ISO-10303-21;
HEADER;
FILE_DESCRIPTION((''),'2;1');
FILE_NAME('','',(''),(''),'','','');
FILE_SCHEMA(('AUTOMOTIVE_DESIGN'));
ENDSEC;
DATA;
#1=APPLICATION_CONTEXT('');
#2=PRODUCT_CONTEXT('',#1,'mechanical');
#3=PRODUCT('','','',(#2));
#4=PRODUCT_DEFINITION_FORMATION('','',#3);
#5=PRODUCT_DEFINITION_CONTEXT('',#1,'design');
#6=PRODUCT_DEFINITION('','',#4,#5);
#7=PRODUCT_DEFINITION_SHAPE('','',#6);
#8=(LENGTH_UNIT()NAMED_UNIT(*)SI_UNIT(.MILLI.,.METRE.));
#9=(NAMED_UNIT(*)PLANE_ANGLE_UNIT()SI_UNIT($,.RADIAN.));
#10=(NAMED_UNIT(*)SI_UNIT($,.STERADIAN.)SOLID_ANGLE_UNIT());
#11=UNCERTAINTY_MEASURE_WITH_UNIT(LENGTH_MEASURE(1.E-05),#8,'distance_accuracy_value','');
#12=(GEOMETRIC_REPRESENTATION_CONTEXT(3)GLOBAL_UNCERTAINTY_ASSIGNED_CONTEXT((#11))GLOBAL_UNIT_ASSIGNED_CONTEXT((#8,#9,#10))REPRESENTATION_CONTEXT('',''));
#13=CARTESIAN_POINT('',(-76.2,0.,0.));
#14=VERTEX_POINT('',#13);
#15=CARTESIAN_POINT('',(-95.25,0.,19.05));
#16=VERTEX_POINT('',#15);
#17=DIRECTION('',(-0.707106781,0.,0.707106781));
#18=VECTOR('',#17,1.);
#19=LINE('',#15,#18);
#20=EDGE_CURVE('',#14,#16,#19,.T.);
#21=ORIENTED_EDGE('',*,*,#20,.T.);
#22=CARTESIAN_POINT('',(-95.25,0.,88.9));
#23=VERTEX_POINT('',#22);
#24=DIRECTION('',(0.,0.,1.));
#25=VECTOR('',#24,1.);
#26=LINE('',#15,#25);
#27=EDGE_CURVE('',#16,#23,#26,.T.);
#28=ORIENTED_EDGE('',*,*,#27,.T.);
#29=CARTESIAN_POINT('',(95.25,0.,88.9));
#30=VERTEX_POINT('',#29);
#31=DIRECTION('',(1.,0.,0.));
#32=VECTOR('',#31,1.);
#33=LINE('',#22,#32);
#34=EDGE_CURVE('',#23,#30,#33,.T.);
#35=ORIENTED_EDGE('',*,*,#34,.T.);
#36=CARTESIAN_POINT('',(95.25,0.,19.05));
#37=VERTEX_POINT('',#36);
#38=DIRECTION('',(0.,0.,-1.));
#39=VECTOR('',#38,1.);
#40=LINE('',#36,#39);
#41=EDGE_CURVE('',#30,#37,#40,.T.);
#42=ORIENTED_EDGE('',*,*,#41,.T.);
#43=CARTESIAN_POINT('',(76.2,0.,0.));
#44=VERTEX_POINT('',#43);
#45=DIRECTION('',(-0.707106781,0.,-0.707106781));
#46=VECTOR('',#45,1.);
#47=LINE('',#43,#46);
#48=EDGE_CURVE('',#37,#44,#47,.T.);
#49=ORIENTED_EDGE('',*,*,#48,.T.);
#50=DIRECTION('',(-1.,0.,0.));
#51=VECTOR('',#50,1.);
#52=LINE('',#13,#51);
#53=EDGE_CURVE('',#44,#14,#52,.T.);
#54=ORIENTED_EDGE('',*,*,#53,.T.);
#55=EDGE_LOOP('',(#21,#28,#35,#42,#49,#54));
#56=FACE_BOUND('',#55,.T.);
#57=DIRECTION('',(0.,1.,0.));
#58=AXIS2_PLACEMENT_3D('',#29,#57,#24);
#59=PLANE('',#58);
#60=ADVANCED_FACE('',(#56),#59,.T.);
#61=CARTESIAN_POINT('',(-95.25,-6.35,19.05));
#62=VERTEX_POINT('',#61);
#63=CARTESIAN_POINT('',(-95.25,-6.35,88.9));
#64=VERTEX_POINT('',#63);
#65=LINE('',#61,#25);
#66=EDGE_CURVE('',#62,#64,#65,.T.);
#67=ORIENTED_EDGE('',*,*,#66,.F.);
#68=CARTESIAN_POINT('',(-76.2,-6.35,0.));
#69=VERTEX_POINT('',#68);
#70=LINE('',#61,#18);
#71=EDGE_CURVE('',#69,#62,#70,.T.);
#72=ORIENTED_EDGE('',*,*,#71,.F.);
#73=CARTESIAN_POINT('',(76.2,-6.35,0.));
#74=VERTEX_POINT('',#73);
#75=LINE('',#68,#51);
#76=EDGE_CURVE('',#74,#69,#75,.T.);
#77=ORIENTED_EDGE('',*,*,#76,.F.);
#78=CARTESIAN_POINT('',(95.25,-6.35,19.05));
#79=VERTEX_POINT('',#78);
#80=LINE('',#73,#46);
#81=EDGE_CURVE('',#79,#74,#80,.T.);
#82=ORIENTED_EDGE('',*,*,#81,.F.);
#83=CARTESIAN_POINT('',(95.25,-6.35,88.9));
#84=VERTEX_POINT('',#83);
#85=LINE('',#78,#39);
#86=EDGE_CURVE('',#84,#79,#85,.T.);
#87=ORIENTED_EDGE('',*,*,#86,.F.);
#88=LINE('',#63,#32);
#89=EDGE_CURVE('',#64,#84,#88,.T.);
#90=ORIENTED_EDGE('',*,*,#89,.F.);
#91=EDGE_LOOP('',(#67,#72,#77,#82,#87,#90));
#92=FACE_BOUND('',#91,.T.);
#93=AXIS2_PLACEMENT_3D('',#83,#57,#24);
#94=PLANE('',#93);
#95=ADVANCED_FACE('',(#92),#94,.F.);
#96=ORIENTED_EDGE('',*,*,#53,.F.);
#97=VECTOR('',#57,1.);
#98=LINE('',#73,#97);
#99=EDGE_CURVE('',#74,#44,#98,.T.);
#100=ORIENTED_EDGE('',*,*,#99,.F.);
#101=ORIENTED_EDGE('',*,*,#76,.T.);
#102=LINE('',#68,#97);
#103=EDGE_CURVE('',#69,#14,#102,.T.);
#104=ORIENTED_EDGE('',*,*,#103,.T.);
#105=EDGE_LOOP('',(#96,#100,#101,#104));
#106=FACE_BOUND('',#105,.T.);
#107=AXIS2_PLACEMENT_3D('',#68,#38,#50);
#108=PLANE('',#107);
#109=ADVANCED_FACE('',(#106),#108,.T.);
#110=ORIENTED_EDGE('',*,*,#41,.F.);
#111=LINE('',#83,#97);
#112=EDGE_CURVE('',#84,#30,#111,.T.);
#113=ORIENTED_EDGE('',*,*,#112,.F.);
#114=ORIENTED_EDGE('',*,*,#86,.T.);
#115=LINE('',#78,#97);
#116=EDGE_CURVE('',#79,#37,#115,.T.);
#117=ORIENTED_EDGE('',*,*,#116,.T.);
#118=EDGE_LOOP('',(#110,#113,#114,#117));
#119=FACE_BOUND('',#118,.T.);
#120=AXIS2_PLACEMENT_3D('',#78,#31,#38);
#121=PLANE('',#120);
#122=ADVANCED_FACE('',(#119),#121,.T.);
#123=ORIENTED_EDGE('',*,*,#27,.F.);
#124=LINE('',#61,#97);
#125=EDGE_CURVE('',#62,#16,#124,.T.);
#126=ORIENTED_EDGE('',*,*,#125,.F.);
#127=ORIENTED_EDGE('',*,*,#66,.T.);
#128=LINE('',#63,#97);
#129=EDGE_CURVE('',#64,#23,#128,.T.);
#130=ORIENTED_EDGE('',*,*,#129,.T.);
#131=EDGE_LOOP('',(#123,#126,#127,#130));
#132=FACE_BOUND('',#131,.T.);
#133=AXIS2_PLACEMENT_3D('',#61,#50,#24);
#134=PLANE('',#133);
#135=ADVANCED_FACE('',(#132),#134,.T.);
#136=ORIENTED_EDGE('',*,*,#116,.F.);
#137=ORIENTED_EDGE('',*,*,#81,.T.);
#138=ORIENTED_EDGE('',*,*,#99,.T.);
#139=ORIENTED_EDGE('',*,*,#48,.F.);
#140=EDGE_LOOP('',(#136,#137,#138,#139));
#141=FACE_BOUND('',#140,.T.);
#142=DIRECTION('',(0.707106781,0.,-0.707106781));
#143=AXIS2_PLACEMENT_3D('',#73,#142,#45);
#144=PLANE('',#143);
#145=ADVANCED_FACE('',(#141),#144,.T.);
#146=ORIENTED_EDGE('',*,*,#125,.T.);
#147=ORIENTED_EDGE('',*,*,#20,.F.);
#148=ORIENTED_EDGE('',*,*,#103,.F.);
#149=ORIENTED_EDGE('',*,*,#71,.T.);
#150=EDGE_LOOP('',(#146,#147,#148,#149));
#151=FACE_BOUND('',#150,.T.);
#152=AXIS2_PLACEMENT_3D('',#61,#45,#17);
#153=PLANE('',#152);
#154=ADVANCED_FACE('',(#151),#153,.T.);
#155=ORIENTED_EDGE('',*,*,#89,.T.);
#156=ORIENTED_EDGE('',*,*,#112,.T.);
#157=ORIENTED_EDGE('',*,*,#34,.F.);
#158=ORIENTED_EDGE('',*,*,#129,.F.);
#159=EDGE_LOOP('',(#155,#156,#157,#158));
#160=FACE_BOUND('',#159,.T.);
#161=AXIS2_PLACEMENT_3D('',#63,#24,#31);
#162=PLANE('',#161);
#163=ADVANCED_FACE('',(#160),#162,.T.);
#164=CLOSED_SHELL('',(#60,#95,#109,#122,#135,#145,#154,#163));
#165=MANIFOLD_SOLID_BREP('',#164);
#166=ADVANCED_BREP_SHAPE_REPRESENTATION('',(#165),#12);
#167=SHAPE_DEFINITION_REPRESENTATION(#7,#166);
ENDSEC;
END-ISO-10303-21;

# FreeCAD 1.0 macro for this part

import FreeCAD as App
import Part
import Sketcher
Q = App.Units.Quantity


def add_polygon(sketch, points):
    """Adds a closed chain of lines whose ends are joined by coincident constraints."""
    first, n = sketch.GeometryCount, len(points)
    for a, b in zip(points, points[1:] + points[:1]):
        sketch.addGeometry(Part.LineSegment(App.Vector(*a, 0), App.Vector(*b, 0)), False)
    for i in range(n):
        sketch.addConstraint(Sketcher.Constraint("Coincident", first + i, 2, first + (i + 1) % n, 1))

doc = App.newDocument("Part")
body = doc.addObject("PartDesign::Body", "Body")

# Sketch on XZ plane
sketch1 = body.newObject("Sketcher::SketchObject", "Sketch")
sketch1.AttachmentSupport = (doc.getObject("XZ_Plane"), [""])
sketch1.MapMode = "FlatFace"
add_polygon(sketch1, [(-76.2, 0), (-95.25, 19.05), (-95.25, 88.9), (95.25, 88.9), (95.25, 19.05), (76.2, 0)])  # lines 0-5
sketch1.addConstraint(Sketcher.Constraint("Vertical", 1))
sketch1.addConstraint(Sketcher.Constraint("Horizontal", 2))
sketch1.addConstraint(Sketcher.Constraint("Vertical", 3))
sketch1.addConstraint(Sketcher.Constraint("Horizontal", 5))
sketch1.addConstraint(Sketcher.Constraint("Symmetric", 4, 2, 5, 2, -1, 1))
sketch1.addConstraint(Sketcher.Constraint("Symmetric", 0, 2, 3, 2, -2))
sketch1.addConstraint(Sketcher.Constraint("Perpendicular", 0, 4))
sketch1.addConstraint(Sketcher.Constraint("DistanceX", 5, 2, 5, 1, Q("6 in")))
sketch1.addConstraint(Sketcher.Constraint("DistanceX", 2, 1, 2, 2, Q("7.5 in")))
sketch1.addConstraint(Sketcher.Constraint("DistanceY", 1, 1, 1, 2, Q("2.75 in")))
pad1 = body.newObject("PartDesign::Pad", "Pad")
pad1.Profile = sketch1
pad1.Length = Q("0.25 in")

doc.recompute()
